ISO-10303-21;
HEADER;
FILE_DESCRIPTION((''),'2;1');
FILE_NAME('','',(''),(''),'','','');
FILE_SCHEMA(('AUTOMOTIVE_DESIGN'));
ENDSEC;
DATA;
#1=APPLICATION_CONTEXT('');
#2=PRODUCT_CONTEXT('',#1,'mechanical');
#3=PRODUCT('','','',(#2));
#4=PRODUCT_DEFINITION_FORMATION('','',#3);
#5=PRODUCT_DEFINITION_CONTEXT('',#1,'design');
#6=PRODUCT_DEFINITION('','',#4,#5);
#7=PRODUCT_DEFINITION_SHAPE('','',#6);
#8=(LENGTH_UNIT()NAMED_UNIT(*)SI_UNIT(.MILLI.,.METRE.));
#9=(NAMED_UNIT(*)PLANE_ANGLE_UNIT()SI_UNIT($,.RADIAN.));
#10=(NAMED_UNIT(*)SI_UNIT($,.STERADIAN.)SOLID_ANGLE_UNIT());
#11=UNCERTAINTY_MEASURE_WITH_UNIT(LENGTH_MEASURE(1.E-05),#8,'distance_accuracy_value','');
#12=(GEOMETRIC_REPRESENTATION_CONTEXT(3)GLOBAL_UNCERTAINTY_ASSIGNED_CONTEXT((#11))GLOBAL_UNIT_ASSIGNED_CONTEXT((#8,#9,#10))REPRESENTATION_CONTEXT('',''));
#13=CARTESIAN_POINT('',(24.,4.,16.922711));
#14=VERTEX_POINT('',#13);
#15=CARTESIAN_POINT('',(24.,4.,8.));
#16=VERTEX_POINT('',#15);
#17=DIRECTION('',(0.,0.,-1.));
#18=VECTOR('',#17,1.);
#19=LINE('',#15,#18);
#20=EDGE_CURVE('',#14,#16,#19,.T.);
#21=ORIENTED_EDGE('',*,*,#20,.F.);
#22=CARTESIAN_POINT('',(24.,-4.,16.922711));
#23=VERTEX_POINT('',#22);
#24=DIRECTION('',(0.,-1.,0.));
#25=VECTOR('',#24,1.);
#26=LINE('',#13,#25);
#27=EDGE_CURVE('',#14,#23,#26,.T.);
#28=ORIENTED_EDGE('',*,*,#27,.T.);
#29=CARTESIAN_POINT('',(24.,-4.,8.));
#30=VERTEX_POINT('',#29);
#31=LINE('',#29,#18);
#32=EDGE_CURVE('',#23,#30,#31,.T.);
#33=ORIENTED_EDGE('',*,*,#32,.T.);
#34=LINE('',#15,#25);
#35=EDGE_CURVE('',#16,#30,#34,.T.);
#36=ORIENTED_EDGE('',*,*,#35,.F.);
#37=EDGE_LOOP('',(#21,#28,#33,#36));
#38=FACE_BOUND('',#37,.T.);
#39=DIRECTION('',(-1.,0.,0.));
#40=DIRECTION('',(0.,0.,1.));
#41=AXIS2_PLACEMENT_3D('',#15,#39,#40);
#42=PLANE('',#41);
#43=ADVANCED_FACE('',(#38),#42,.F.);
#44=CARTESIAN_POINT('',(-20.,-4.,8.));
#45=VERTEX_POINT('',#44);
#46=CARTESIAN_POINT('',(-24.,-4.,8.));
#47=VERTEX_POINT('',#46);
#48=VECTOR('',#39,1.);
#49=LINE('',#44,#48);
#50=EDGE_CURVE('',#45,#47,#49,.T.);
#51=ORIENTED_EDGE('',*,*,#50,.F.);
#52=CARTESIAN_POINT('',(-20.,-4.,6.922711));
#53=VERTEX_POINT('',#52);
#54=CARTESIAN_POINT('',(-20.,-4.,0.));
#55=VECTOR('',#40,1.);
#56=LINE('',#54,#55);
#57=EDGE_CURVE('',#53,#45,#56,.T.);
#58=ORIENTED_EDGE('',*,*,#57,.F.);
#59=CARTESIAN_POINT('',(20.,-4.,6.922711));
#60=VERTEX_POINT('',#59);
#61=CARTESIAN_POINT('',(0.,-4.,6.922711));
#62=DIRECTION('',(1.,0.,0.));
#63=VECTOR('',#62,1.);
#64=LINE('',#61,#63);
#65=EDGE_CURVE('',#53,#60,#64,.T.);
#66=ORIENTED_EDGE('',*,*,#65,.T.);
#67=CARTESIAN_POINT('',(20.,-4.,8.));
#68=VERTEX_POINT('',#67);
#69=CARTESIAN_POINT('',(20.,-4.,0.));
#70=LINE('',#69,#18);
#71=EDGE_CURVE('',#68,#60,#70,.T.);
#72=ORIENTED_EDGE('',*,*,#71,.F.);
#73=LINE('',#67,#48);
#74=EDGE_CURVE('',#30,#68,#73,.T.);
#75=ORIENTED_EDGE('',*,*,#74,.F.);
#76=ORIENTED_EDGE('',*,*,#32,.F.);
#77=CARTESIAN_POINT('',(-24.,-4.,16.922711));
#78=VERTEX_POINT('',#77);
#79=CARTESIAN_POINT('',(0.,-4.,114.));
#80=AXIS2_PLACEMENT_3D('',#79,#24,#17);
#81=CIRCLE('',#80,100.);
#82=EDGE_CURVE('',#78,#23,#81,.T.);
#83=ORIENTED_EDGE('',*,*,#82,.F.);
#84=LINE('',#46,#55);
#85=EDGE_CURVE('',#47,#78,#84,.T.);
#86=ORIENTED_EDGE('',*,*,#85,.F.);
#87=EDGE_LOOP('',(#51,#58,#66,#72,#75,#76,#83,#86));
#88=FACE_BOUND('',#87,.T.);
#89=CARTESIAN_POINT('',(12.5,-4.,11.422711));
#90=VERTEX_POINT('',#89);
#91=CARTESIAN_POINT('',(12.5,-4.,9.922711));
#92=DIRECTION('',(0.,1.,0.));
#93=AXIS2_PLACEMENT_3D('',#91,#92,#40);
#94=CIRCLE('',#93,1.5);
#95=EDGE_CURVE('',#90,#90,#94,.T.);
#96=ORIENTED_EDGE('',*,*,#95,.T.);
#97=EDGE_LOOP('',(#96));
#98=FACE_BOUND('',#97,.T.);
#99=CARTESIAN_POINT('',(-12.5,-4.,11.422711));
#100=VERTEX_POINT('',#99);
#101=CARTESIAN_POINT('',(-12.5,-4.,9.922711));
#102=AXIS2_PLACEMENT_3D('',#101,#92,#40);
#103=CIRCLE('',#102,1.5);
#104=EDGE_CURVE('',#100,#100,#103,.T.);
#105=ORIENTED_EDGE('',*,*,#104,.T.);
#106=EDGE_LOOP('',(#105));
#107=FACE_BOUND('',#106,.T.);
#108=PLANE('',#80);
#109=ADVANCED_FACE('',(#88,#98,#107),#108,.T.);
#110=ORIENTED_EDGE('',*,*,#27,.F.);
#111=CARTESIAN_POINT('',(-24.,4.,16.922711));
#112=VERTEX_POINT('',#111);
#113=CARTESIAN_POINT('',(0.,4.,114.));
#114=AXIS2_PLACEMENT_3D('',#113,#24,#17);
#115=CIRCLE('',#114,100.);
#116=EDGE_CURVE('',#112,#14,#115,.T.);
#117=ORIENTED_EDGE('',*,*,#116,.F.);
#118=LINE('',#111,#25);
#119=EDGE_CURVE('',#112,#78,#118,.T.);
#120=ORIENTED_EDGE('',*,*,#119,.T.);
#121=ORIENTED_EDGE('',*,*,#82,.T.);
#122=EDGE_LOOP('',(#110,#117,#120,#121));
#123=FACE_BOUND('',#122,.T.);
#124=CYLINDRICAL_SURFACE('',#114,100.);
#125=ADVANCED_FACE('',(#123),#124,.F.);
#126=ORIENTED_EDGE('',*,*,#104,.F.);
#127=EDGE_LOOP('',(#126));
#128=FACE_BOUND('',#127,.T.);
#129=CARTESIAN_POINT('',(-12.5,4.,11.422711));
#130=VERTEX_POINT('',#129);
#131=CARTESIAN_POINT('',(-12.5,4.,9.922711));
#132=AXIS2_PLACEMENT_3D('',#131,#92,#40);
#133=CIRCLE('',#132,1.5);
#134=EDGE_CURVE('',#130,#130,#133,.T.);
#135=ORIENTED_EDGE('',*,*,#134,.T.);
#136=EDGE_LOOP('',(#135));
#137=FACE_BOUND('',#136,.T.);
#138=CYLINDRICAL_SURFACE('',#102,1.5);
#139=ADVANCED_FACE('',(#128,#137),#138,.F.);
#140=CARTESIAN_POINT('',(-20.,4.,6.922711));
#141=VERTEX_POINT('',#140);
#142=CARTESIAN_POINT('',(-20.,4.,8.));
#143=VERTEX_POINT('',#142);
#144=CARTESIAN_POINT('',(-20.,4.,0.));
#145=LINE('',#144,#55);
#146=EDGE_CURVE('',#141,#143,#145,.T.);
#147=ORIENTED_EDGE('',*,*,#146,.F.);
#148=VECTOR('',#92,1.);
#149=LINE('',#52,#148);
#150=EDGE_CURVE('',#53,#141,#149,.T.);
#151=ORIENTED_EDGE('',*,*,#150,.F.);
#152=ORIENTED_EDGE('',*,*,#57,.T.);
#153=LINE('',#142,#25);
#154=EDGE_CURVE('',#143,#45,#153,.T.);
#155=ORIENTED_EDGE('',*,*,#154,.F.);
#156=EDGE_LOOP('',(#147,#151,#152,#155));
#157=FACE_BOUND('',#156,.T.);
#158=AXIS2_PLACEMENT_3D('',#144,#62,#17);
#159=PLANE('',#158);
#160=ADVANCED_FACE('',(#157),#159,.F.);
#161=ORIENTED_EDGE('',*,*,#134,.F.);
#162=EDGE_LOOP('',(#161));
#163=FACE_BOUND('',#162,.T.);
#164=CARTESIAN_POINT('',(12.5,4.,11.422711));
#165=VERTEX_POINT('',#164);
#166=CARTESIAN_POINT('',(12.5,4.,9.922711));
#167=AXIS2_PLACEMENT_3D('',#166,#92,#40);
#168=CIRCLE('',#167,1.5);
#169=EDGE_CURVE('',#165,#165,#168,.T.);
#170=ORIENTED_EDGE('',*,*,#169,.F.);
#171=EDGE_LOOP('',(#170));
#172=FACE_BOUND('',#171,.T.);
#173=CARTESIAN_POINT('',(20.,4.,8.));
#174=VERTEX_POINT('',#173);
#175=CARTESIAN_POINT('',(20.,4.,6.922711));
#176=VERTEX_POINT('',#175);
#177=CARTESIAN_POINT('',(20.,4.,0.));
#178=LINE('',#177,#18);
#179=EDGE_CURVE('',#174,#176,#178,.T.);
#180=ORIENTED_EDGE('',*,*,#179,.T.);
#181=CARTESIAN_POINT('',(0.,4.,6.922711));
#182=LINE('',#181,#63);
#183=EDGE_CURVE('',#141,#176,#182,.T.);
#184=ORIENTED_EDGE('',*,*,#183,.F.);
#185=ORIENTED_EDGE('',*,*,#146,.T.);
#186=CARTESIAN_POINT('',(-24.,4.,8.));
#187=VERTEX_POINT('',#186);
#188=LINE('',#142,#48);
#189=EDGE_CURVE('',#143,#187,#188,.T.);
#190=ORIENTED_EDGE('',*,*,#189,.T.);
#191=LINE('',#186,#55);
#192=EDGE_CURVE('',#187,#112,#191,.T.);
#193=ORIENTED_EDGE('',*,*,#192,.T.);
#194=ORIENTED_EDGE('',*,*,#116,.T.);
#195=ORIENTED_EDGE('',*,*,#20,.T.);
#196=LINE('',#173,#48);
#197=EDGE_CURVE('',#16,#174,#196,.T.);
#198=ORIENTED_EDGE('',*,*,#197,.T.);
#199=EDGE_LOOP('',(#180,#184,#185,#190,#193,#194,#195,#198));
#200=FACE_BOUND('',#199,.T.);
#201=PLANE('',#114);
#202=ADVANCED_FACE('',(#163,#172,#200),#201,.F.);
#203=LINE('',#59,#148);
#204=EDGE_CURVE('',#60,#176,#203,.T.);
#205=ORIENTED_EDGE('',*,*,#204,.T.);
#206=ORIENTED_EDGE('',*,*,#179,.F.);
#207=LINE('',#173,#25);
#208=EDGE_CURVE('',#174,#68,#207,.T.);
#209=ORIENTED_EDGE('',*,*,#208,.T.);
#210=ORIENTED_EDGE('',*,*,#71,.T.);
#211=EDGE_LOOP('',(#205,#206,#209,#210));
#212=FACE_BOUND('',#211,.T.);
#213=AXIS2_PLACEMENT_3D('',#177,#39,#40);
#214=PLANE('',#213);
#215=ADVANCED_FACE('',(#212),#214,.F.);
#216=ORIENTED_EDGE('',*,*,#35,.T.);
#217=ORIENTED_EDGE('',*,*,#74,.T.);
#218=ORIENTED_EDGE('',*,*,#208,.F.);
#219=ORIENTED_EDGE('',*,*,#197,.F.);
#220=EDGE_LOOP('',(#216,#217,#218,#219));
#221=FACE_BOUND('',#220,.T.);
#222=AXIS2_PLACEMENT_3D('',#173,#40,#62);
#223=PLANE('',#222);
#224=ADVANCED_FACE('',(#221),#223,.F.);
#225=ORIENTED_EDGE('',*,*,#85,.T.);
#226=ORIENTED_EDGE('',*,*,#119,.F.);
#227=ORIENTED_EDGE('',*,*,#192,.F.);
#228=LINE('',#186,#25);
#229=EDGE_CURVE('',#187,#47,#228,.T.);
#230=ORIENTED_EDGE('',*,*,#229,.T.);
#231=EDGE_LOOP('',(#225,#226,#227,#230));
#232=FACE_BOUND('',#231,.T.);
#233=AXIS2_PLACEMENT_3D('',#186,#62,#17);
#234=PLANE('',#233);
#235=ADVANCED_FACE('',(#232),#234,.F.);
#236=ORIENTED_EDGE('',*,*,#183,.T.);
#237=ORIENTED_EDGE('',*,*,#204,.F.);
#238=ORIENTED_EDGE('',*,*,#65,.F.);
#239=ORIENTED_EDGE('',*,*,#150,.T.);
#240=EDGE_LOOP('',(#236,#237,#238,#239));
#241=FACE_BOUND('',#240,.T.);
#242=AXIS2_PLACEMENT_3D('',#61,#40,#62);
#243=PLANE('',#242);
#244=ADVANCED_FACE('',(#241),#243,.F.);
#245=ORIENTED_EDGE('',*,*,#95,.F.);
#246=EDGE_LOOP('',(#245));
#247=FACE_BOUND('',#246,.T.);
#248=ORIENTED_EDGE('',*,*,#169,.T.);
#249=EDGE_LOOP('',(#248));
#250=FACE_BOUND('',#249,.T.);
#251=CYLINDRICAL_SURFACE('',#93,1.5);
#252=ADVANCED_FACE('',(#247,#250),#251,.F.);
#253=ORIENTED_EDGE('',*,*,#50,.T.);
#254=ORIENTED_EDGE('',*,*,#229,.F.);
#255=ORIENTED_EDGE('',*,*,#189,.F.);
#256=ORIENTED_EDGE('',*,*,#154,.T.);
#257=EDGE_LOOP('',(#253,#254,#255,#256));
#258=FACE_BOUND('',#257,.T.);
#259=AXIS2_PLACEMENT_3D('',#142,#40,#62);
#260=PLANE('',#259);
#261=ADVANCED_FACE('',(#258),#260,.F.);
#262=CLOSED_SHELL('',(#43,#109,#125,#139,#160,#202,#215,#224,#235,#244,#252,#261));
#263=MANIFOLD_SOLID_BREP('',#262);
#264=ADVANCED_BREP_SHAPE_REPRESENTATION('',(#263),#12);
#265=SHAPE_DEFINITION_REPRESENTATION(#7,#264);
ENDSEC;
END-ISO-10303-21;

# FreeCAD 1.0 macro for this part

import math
import FreeCAD as App
import Part
import Sketcher
Q = App.Units.Quantity


def add_polygon(sketch, points):
    """Adds a closed chain of lines whose ends are joined by coincident constraints."""
    first, n = sketch.GeometryCount, len(points)
    for a, b in zip(points, points[1:] + points[:1]):
        sketch.addGeometry(Part.LineSegment(App.Vector(*a, 0), App.Vector(*b, 0)), False)
    for i in range(n):
        sketch.addConstraint(Sketcher.Constraint("Coincident", first + i, 2, first + (i + 1) % n, 1))

doc = App.newDocument("Part")
body = doc.addObject("PartDesign::Body", "Body")

# Sketch on XZ plane
sketch1 = body.newObject("Sketcher::SketchObject", "Sketch")
sketch1.AttachmentSupport = (doc.getObject("XZ_Plane"), [""])
sketch1.MapMode = "FlatFace"
sketch1.addGeometry([
    Part.LineSegment(App.Vector(20, 0, 0), App.Vector(-20, 0, 0)),  # 0
    Part.LineSegment(App.Vector(-20, 0, 0), App.Vector(-20, 8, 0)),  # 1
    Part.LineSegment(App.Vector(-20, 8, 0), App.Vector(-24, 8, 0)),  # 2
    Part.LineSegment(App.Vector(-24, 8, 0), App.Vector(-24, 16.9, 0)),  # 3
    Part.ArcOfCircle(Part.Circle(App.Vector(0, 114, 0), App.Vector(0, 0, 1), 100), math.radians(-104), math.radians(-76)),  # 4
    Part.LineSegment(App.Vector(24, 16.9, 0), App.Vector(24, 8, 0)),  # 5
    Part.LineSegment(App.Vector(24, 8, 0), App.Vector(20, 8, 0)),  # 6
    Part.LineSegment(App.Vector(20, 8, 0), App.Vector(20, 0, 0)),  # 7
], False)
sketch1.addConstraint([
    Sketcher.Constraint("Coincident", 0, 2, 1, 1),
    Sketcher.Constraint("Coincident", 1, 2, 2, 1),
    Sketcher.Constraint("Coincident", 2, 2, 3, 1),
    Sketcher.Constraint("Coincident", 3, 2, 4, 1),
    Sketcher.Constraint("Coincident", 4, 2, 5, 1),
    Sketcher.Constraint("Coincident", 5, 2, 6, 1),
    Sketcher.Constraint("Coincident", 6, 2, 7, 1),
    Sketcher.Constraint("Coincident", 7, 2, 0, 1),
    Sketcher.Constraint("Horizontal", 0),
    Sketcher.Constraint("Vertical", 1),
    Sketcher.Constraint("Horizontal", 2),
    Sketcher.Constraint("Vertical", 3),
    Sketcher.Constraint("Vertical", 5),
    Sketcher.Constraint("Horizontal", 6),
    Sketcher.Constraint("Vertical", 7),
    Sketcher.Constraint("Symmetric", 0, 2, 7, 2, -1, 1),
    Sketcher.Constraint("Symmetric", 3, 2, 4, 2, -2),
    Sketcher.Constraint("Horizontal", 2, 2, 5, 2),
    Sketcher.Constraint("Radius", 4, Q("100 mm")),
    Sketcher.Constraint("DistanceX", 0, 2, 0, 1, Q("40 mm")),
    Sketcher.Constraint("DistanceX", 2, 2, 2, 1, Q("4 mm")),
    Sketcher.Constraint("DistanceY", 1, 1, 1, 2, Q("8 mm")),
    Sketcher.Constraint("DistanceY", -1, 1, 4, 3, Q("114 mm")),
])
pad1 = body.newObject("PartDesign::Pad", "Pad")
pad1.Profile = sketch1
pad1.Length = 8
pad1.Midplane = True

# Sketch on XZ plane
sketch2 = body.newObject("Sketcher::SketchObject", "Sketch001")
sketch2.AttachmentSupport = (doc.getObject("XZ_Plane"), [""])
sketch2.MapMode = "FlatFace"
sketch2.AttachmentOffset = App.Placement(App.Vector(0, 0, -4), App.Rotation())
sketch2.addGeometry(Part.Circle(App.Vector(-12.5, 9.9, 0), App.Vector(0, 0, 1), 1.5), False)  # 0
sketch2.addGeometry(Part.Circle(App.Vector(12.5, 9.9, 0), App.Vector(0, 0, 1), 1.5), False)  # 1
add_polygon(sketch2, [(-20, 0), (-20, 6.9), (20, 6.9), (20, 0)])  # lines 2-5
sketch2.addConstraint([
    Sketcher.Constraint("Vertical", 2),
    Sketcher.Constraint("Horizontal", 3),
    Sketcher.Constraint("Vertical", 4),
    Sketcher.Constraint("Horizontal", 5),
    Sketcher.Constraint("Equal", 0, 1),
    Sketcher.Constraint("Symmetric", 4, 2, 5, 2, -1, 1),
    Sketcher.Constraint("Symmetric", 0, 3, 1, 3, -2),
    Sketcher.Constraint("Diameter", 0, Q("3 mm")),
    Sketcher.Constraint("DistanceX", 3, 1, 3, 2, Q("40 mm")),
    Sketcher.Constraint("DistanceX", 0, 3, 1, 3, Q("25 mm")),
    Sketcher.Constraint("DistanceY", 2, 2, 0, 3, Q("3 mm")),
    Sketcher.Constraint("DistanceY", 2, 1, 2, 2, Q("6.922711 mm")),
])
pocket1 = body.newObject("PartDesign::Pocket", "Pocket")
pocket1.Profile = sketch2
pocket1.Type = "ThroughAll"
pocket1.Reversed = True

doc.recompute()
